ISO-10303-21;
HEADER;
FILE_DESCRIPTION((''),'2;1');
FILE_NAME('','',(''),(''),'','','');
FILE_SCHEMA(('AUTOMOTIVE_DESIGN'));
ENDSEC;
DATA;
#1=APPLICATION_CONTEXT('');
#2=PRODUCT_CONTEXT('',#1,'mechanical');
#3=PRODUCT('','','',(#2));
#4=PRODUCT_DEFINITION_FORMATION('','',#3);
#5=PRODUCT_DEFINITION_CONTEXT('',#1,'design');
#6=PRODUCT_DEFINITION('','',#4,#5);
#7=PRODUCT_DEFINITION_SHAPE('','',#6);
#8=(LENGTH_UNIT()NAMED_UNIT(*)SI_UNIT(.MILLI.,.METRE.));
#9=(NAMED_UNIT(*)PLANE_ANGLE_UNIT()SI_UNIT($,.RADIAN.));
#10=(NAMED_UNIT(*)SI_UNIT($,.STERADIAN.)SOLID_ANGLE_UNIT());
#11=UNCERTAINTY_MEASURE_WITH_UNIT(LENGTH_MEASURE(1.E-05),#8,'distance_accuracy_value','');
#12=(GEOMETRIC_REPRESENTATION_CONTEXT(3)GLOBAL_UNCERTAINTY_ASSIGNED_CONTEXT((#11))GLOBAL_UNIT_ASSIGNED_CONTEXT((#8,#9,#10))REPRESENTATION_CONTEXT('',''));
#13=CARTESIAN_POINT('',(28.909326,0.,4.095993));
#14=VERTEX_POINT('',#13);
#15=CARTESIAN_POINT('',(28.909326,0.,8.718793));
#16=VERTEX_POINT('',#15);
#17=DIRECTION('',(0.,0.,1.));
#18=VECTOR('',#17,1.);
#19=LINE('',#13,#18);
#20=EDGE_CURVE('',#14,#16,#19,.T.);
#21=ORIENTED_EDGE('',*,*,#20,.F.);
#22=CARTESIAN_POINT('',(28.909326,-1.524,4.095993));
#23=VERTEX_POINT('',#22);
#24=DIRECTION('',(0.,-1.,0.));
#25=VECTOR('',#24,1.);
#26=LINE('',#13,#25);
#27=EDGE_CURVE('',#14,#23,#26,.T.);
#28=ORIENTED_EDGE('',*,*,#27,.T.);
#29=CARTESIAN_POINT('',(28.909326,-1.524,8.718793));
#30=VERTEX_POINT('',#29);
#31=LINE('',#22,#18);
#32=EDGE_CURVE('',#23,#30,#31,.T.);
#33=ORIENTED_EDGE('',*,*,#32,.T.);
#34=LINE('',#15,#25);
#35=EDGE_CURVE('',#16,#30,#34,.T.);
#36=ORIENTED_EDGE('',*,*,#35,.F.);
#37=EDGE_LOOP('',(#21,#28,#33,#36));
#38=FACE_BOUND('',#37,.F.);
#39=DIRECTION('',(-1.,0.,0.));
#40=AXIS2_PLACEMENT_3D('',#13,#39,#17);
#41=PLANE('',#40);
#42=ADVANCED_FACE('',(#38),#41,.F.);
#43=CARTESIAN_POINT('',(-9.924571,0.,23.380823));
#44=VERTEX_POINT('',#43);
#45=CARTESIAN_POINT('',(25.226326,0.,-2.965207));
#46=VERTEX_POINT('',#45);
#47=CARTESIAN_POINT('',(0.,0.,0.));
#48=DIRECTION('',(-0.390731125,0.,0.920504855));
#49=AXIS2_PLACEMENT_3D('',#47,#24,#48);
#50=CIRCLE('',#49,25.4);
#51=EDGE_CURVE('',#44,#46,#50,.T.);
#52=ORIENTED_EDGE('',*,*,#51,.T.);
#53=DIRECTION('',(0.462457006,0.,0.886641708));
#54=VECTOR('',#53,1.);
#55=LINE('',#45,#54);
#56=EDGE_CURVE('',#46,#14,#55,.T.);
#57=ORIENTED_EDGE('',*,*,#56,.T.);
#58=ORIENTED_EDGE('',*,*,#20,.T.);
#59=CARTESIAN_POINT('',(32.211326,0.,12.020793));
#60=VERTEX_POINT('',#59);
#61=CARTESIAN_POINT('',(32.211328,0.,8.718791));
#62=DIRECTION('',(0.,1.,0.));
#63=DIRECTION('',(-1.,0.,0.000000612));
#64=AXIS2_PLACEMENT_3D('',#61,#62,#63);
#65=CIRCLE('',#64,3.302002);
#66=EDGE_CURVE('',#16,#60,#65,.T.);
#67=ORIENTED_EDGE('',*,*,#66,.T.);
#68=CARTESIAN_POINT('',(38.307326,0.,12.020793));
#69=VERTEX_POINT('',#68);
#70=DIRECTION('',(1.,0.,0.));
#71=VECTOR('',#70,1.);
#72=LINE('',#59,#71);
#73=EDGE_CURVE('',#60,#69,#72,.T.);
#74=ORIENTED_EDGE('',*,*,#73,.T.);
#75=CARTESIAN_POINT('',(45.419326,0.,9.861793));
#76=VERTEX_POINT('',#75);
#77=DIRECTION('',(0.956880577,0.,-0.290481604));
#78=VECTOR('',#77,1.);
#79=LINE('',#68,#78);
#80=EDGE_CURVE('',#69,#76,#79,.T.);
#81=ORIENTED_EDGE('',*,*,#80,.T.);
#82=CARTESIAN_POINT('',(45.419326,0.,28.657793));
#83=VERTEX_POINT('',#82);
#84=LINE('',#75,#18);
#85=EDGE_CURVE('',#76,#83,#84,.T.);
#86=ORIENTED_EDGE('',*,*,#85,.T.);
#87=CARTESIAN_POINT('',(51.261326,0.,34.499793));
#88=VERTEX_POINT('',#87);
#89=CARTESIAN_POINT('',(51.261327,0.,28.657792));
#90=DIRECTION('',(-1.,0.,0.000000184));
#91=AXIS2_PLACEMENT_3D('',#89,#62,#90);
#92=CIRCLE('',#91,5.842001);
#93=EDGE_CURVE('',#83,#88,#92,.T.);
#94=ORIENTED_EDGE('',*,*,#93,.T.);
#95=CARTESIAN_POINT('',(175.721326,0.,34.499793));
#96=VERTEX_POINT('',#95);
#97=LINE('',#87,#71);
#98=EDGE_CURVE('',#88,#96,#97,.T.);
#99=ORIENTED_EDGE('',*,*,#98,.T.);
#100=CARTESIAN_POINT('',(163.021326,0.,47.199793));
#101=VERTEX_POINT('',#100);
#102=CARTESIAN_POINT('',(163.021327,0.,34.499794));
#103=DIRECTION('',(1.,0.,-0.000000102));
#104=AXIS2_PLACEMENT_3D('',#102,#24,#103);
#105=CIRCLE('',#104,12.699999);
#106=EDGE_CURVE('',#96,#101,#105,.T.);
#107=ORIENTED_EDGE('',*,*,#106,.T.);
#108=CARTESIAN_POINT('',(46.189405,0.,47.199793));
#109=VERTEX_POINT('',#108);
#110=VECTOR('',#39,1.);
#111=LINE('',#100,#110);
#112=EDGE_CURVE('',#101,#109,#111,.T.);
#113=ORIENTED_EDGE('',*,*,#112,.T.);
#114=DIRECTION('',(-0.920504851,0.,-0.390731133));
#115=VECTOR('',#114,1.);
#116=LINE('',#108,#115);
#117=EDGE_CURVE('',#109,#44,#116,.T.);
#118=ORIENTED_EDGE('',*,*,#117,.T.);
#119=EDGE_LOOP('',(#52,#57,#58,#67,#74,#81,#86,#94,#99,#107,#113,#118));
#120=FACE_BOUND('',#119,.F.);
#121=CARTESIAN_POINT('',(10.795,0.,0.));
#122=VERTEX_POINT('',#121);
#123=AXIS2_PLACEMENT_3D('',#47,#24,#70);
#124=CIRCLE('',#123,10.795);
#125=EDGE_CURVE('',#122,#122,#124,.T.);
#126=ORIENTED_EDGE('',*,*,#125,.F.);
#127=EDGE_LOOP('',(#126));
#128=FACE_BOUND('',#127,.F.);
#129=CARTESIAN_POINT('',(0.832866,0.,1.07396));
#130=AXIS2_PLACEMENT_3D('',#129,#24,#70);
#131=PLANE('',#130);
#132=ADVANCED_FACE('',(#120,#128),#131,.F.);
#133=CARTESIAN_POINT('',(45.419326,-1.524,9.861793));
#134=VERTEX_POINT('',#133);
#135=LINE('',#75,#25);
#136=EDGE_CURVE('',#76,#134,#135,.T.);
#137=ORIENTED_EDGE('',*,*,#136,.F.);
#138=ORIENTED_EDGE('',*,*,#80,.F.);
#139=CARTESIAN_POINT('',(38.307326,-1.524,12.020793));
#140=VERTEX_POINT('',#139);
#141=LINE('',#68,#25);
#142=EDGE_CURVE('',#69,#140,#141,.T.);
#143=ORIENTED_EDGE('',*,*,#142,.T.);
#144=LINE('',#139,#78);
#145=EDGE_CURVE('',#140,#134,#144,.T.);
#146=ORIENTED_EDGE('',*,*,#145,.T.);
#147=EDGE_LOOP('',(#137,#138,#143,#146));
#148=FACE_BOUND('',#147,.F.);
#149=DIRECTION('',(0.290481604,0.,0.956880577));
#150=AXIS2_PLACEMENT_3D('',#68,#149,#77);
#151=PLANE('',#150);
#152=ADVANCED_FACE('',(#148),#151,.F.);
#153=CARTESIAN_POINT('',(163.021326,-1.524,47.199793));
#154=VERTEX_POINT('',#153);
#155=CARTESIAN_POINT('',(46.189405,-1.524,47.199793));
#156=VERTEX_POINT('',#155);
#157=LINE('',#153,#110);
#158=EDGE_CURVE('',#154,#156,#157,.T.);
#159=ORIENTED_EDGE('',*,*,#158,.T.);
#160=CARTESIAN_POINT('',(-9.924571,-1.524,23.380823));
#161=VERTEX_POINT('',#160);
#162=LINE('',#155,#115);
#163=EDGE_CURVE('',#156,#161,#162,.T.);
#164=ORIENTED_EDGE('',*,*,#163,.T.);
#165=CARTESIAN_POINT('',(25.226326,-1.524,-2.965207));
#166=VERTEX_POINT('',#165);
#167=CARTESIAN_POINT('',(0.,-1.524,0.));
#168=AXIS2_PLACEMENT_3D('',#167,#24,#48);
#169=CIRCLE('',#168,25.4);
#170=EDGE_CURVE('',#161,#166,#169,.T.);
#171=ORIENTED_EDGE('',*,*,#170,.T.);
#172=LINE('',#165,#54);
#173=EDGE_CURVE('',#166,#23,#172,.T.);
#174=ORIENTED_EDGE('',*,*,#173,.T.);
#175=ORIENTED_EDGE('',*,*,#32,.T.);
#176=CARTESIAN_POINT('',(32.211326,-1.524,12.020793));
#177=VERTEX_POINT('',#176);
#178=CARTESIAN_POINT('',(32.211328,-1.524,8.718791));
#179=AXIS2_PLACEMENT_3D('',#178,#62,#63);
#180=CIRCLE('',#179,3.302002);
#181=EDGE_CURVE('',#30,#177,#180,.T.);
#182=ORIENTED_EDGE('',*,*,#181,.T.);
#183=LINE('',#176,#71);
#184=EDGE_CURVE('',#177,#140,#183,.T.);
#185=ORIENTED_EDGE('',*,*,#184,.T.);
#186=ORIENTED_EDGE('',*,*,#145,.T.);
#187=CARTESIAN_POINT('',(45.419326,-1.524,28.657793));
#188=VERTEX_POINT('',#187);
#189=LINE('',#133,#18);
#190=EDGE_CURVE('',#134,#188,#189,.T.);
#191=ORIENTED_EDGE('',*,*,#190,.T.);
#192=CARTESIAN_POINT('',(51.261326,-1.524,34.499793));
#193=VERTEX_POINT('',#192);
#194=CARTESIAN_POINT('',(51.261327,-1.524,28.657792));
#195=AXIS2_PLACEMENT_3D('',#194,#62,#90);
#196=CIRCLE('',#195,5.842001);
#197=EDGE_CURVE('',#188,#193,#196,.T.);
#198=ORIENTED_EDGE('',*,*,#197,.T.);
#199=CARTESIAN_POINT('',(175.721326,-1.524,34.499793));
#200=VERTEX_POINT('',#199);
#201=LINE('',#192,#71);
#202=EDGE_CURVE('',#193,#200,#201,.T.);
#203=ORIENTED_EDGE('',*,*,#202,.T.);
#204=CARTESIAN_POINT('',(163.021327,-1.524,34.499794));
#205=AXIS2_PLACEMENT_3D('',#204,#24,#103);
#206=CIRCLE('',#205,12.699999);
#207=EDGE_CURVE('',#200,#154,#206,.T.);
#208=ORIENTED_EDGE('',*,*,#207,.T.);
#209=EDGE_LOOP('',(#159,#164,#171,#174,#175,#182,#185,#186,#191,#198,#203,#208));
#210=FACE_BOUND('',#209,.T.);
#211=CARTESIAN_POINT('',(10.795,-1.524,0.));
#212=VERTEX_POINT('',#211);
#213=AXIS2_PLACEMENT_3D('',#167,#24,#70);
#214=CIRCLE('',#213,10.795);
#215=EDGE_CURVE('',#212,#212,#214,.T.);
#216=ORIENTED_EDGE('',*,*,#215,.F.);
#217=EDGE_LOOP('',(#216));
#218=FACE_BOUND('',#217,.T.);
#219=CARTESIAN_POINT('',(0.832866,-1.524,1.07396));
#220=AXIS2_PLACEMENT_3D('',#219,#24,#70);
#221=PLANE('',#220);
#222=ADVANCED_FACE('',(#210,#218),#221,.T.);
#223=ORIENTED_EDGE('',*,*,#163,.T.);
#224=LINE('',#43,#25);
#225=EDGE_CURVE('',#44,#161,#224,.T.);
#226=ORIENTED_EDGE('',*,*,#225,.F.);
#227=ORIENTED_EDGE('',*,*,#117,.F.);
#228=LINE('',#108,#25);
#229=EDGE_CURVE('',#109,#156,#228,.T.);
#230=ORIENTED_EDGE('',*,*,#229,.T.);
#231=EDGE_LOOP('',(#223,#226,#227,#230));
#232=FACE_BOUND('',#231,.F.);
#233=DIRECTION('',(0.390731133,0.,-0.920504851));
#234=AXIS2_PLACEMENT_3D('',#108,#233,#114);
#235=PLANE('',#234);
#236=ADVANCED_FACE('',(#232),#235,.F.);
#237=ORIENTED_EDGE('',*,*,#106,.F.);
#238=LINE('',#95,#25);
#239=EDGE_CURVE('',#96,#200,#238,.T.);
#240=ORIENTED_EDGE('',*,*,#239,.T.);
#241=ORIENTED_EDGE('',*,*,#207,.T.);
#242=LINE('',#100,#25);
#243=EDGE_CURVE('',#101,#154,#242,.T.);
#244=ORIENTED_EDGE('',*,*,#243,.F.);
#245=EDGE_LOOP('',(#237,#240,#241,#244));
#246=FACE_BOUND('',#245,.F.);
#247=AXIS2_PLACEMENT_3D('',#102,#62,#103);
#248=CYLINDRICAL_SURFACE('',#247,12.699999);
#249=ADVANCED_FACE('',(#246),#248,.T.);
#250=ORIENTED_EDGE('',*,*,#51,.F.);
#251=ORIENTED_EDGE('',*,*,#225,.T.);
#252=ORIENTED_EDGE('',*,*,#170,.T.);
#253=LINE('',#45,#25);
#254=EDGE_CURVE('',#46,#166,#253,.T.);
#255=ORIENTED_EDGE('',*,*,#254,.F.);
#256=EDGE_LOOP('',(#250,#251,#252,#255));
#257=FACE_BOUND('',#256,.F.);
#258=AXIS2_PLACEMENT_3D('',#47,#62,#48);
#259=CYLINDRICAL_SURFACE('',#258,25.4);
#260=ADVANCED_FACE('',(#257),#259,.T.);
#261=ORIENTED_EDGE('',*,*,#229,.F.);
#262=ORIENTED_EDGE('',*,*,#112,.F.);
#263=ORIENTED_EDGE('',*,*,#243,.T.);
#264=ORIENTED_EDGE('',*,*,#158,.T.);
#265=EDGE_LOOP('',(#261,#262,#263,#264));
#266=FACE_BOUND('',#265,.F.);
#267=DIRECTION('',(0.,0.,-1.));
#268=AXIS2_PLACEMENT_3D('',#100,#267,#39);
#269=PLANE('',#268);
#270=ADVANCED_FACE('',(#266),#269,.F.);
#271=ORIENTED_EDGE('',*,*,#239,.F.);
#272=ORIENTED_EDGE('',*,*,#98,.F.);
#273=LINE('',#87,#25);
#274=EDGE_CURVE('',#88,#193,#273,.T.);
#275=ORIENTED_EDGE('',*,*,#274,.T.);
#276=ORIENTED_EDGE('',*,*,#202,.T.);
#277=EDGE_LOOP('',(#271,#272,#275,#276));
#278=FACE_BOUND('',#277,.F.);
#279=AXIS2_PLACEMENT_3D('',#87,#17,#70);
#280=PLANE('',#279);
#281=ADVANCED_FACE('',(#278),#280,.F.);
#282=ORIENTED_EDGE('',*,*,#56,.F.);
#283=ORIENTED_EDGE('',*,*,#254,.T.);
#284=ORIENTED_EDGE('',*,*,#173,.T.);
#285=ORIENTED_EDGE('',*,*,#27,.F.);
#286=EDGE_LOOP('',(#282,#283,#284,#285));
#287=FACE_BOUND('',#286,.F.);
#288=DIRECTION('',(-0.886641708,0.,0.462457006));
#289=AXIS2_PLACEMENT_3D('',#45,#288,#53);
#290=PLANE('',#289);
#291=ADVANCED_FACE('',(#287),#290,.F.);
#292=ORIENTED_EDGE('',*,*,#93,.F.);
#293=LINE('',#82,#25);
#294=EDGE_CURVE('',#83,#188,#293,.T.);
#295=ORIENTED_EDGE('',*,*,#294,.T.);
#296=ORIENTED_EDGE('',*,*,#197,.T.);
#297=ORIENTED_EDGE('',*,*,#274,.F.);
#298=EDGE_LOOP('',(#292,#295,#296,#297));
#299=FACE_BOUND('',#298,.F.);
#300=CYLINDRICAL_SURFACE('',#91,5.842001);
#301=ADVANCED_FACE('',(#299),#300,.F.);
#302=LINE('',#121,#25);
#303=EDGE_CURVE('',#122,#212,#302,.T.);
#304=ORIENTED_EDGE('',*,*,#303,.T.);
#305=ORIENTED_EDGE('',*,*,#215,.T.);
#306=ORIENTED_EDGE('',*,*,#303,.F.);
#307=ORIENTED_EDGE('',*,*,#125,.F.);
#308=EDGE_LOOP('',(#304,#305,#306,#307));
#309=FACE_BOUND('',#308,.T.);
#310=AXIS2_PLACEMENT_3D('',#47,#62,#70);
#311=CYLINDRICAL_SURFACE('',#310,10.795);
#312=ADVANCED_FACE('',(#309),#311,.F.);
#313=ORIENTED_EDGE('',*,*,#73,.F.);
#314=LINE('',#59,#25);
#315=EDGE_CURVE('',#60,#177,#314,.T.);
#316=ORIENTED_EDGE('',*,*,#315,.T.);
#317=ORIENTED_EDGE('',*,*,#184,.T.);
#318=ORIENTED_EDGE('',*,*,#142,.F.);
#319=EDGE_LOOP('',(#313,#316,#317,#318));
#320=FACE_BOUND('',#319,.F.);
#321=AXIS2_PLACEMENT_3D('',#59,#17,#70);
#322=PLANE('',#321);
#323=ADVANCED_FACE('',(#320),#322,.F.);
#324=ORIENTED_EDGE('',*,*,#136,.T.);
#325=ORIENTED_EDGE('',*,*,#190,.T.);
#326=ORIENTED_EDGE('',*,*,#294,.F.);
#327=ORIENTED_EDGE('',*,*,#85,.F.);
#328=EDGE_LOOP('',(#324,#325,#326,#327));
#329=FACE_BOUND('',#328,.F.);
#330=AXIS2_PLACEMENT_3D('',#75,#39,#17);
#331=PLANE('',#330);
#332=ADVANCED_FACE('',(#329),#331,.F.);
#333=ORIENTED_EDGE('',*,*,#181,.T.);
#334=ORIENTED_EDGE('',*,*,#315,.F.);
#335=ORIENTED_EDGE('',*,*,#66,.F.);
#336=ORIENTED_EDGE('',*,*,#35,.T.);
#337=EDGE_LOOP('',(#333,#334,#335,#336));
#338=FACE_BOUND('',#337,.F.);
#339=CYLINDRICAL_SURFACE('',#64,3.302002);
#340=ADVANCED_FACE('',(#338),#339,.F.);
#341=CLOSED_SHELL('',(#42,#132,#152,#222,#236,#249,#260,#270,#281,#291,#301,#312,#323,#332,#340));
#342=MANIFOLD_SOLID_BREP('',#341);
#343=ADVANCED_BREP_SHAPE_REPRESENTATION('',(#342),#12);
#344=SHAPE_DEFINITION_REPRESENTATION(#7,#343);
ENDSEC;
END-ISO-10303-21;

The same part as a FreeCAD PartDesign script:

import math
import FreeCAD as App
import Part
import Sketcher
from FreeCAD import Vector
Q = App.Units.Quantity

doc = App.newDocument("Part")
body = doc.addObject("PartDesign::Body", "Body")

# Sketch on XZ plane
sketch1 = doc.addObject("Sketcher::SketchObject", "Sketch")
body.addObject(sketch1)
sketch1.AttachmentSupport = (doc.XZ_Plane, [""])
sketch1.MapMode = "FlatFace"
sketch1.addGeometry([
    Part.ArcOfCircle(Part.Circle(Vector(0, 0, 0), Vector(0, 0, 1), 25.4), math.radians(113), math.radians(353.29598)),  # 0
    Part.LineSegment(Vector(25.226326, -2.965207, 0), Vector(28.909326, 4.095993, 0)),  # 1
    Part.LineSegment(Vector(28.909326, 4.095993, 0), Vector(28.909326, 8.718793, 0)),  # 2
    Part.ArcOfCircle(Part.Circle(Vector(32.211328, 8.718791, 0), Vector(0, 0, 1), 3.302002), math.radians(90.000035), math.radians(179.999965)),  # 3
    Part.LineSegment(Vector(32.211326, 12.020793, 0), Vector(38.307326, 12.020793, 0)),  # 4
    Part.LineSegment(Vector(38.307326, 12.020793, 0), Vector(45.419326, 9.861793, 0)),  # 5
    Part.LineSegment(Vector(45.419326, 9.861793, 0), Vector(45.419326, 28.657793, 0)),  # 6
    Part.ArcOfCircle(Part.Circle(Vector(51.261327, 28.657792, 0), Vector(0, 0, 1), 5.842001), math.radians(90.000011), math.radians(179.999989)),  # 7
    Part.LineSegment(Vector(51.261326, 34.499793, 0), Vector(175.721326, 34.499793, 0)),  # 8
    Part.ArcOfCircle(Part.Circle(Vector(163.021327, 34.499794, 0), Vector(0, 0, 1), 12.699999), math.radians(-0.000006), math.radians(90.000006)),  # 9
    Part.LineSegment(Vector(163.021326, 47.199793, 0), Vector(46.189405, 47.199793, 0)),  # 10
    Part.LineSegment(Vector(46.189405, 47.199793, 0), Vector(-9.924571, 23.380823, 0)),  # 11
    Part.Circle(Vector(0, 0, 0), Vector(0, 0, 1), 10.795),  # 12
], False)
sketch1.addConstraint([
    Sketcher.Constraint("Coincident", 0, 2, 1, 1),
    Sketcher.Constraint("Coincident", 1, 2, 2, 1),
    Sketcher.Constraint("Tangent", 2, 2, 3, 2),
    Sketcher.Constraint("Tangent", 3, 1, 4, 1),
    Sketcher.Constraint("Coincident", 4, 2, 5, 1),
    Sketcher.Constraint("Coincident", 5, 2, 6, 1),
    Sketcher.Constraint("Tangent", 6, 2, 7, 2),
    Sketcher.Constraint("Tangent", 7, 1, 8, 1),
    Sketcher.Constraint("Coincident", 8, 2, 9, 1),
    Sketcher.Constraint("Tangent", 9, 2, 10, 1),
    Sketcher.Constraint("Coincident", 10, 2, 11, 1),
    Sketcher.Constraint("Tangent", 11, 2, 0, 1),
    Sketcher.Constraint("Vertical", 2),
    Sketcher.Constraint("Horizontal", 4),
    Sketcher.Constraint("Vertical", 6),
    Sketcher.Constraint("Horizontal", 8),
    Sketcher.Constraint("Horizontal", 10),
    Sketcher.Constraint("Coincident", 0, 3, -1, 1),
    Sketcher.Constraint("Coincident", 12, 3, -1, 1),
    Sketcher.Constraint("Horizontal", 9, 3, 7, 1),
    Sketcher.Constraint("Radius", 0, Q("1 in")),
    Sketcher.Constraint("Radius", 9, Q("0.4999999 in")),
    Sketcher.Constraint("Diameter", 12, Q("0.85 in")),
    Sketcher.Constraint("Radius", 3, Q("0.1300001 in")),
    Sketcher.Constraint("Radius", 7, Q("0.23 in")),
    Sketcher.Constraint("DistanceX", 8, 1, 8, 2, Q("4.9 in")),
    Sketcher.Constraint("Angle", 11, Q("-157 deg")),
    Sketcher.Constraint("Distance", 11, Q("2.4 in")),
    Sketcher.Constraint("DistanceX", 4, 1, 4, 2, Q("0.24 in")),
    Sketcher.Constraint("DistanceY", 6, 1, 6, 2, Q("0.74 in")),
    Sketcher.Constraint("DistanceY", 2, 1, 2, 2, Q("0.182 in")),
    Sketcher.Constraint("DistanceX", 3, 3, 7, 3, Q("0.75 in")),
    Sketcher.Constraint("DistanceY", 0, 2, 3, 3, Q("0.4599999 in")),
    Sketcher.Constraint("DistanceY", 3, 3, 7, 3, Q("0.785 in")),
    Sketcher.Constraint("DistanceX", 0, 2, 3, 3, Q("0.2750001 in")),
])
pad1 = doc.addObject("PartDesign::Pad", "Pad")
body.addObject(pad1)
pad1.Profile = sketch1
pad1.Length = Q("0.06 in")

doc.recompute()
